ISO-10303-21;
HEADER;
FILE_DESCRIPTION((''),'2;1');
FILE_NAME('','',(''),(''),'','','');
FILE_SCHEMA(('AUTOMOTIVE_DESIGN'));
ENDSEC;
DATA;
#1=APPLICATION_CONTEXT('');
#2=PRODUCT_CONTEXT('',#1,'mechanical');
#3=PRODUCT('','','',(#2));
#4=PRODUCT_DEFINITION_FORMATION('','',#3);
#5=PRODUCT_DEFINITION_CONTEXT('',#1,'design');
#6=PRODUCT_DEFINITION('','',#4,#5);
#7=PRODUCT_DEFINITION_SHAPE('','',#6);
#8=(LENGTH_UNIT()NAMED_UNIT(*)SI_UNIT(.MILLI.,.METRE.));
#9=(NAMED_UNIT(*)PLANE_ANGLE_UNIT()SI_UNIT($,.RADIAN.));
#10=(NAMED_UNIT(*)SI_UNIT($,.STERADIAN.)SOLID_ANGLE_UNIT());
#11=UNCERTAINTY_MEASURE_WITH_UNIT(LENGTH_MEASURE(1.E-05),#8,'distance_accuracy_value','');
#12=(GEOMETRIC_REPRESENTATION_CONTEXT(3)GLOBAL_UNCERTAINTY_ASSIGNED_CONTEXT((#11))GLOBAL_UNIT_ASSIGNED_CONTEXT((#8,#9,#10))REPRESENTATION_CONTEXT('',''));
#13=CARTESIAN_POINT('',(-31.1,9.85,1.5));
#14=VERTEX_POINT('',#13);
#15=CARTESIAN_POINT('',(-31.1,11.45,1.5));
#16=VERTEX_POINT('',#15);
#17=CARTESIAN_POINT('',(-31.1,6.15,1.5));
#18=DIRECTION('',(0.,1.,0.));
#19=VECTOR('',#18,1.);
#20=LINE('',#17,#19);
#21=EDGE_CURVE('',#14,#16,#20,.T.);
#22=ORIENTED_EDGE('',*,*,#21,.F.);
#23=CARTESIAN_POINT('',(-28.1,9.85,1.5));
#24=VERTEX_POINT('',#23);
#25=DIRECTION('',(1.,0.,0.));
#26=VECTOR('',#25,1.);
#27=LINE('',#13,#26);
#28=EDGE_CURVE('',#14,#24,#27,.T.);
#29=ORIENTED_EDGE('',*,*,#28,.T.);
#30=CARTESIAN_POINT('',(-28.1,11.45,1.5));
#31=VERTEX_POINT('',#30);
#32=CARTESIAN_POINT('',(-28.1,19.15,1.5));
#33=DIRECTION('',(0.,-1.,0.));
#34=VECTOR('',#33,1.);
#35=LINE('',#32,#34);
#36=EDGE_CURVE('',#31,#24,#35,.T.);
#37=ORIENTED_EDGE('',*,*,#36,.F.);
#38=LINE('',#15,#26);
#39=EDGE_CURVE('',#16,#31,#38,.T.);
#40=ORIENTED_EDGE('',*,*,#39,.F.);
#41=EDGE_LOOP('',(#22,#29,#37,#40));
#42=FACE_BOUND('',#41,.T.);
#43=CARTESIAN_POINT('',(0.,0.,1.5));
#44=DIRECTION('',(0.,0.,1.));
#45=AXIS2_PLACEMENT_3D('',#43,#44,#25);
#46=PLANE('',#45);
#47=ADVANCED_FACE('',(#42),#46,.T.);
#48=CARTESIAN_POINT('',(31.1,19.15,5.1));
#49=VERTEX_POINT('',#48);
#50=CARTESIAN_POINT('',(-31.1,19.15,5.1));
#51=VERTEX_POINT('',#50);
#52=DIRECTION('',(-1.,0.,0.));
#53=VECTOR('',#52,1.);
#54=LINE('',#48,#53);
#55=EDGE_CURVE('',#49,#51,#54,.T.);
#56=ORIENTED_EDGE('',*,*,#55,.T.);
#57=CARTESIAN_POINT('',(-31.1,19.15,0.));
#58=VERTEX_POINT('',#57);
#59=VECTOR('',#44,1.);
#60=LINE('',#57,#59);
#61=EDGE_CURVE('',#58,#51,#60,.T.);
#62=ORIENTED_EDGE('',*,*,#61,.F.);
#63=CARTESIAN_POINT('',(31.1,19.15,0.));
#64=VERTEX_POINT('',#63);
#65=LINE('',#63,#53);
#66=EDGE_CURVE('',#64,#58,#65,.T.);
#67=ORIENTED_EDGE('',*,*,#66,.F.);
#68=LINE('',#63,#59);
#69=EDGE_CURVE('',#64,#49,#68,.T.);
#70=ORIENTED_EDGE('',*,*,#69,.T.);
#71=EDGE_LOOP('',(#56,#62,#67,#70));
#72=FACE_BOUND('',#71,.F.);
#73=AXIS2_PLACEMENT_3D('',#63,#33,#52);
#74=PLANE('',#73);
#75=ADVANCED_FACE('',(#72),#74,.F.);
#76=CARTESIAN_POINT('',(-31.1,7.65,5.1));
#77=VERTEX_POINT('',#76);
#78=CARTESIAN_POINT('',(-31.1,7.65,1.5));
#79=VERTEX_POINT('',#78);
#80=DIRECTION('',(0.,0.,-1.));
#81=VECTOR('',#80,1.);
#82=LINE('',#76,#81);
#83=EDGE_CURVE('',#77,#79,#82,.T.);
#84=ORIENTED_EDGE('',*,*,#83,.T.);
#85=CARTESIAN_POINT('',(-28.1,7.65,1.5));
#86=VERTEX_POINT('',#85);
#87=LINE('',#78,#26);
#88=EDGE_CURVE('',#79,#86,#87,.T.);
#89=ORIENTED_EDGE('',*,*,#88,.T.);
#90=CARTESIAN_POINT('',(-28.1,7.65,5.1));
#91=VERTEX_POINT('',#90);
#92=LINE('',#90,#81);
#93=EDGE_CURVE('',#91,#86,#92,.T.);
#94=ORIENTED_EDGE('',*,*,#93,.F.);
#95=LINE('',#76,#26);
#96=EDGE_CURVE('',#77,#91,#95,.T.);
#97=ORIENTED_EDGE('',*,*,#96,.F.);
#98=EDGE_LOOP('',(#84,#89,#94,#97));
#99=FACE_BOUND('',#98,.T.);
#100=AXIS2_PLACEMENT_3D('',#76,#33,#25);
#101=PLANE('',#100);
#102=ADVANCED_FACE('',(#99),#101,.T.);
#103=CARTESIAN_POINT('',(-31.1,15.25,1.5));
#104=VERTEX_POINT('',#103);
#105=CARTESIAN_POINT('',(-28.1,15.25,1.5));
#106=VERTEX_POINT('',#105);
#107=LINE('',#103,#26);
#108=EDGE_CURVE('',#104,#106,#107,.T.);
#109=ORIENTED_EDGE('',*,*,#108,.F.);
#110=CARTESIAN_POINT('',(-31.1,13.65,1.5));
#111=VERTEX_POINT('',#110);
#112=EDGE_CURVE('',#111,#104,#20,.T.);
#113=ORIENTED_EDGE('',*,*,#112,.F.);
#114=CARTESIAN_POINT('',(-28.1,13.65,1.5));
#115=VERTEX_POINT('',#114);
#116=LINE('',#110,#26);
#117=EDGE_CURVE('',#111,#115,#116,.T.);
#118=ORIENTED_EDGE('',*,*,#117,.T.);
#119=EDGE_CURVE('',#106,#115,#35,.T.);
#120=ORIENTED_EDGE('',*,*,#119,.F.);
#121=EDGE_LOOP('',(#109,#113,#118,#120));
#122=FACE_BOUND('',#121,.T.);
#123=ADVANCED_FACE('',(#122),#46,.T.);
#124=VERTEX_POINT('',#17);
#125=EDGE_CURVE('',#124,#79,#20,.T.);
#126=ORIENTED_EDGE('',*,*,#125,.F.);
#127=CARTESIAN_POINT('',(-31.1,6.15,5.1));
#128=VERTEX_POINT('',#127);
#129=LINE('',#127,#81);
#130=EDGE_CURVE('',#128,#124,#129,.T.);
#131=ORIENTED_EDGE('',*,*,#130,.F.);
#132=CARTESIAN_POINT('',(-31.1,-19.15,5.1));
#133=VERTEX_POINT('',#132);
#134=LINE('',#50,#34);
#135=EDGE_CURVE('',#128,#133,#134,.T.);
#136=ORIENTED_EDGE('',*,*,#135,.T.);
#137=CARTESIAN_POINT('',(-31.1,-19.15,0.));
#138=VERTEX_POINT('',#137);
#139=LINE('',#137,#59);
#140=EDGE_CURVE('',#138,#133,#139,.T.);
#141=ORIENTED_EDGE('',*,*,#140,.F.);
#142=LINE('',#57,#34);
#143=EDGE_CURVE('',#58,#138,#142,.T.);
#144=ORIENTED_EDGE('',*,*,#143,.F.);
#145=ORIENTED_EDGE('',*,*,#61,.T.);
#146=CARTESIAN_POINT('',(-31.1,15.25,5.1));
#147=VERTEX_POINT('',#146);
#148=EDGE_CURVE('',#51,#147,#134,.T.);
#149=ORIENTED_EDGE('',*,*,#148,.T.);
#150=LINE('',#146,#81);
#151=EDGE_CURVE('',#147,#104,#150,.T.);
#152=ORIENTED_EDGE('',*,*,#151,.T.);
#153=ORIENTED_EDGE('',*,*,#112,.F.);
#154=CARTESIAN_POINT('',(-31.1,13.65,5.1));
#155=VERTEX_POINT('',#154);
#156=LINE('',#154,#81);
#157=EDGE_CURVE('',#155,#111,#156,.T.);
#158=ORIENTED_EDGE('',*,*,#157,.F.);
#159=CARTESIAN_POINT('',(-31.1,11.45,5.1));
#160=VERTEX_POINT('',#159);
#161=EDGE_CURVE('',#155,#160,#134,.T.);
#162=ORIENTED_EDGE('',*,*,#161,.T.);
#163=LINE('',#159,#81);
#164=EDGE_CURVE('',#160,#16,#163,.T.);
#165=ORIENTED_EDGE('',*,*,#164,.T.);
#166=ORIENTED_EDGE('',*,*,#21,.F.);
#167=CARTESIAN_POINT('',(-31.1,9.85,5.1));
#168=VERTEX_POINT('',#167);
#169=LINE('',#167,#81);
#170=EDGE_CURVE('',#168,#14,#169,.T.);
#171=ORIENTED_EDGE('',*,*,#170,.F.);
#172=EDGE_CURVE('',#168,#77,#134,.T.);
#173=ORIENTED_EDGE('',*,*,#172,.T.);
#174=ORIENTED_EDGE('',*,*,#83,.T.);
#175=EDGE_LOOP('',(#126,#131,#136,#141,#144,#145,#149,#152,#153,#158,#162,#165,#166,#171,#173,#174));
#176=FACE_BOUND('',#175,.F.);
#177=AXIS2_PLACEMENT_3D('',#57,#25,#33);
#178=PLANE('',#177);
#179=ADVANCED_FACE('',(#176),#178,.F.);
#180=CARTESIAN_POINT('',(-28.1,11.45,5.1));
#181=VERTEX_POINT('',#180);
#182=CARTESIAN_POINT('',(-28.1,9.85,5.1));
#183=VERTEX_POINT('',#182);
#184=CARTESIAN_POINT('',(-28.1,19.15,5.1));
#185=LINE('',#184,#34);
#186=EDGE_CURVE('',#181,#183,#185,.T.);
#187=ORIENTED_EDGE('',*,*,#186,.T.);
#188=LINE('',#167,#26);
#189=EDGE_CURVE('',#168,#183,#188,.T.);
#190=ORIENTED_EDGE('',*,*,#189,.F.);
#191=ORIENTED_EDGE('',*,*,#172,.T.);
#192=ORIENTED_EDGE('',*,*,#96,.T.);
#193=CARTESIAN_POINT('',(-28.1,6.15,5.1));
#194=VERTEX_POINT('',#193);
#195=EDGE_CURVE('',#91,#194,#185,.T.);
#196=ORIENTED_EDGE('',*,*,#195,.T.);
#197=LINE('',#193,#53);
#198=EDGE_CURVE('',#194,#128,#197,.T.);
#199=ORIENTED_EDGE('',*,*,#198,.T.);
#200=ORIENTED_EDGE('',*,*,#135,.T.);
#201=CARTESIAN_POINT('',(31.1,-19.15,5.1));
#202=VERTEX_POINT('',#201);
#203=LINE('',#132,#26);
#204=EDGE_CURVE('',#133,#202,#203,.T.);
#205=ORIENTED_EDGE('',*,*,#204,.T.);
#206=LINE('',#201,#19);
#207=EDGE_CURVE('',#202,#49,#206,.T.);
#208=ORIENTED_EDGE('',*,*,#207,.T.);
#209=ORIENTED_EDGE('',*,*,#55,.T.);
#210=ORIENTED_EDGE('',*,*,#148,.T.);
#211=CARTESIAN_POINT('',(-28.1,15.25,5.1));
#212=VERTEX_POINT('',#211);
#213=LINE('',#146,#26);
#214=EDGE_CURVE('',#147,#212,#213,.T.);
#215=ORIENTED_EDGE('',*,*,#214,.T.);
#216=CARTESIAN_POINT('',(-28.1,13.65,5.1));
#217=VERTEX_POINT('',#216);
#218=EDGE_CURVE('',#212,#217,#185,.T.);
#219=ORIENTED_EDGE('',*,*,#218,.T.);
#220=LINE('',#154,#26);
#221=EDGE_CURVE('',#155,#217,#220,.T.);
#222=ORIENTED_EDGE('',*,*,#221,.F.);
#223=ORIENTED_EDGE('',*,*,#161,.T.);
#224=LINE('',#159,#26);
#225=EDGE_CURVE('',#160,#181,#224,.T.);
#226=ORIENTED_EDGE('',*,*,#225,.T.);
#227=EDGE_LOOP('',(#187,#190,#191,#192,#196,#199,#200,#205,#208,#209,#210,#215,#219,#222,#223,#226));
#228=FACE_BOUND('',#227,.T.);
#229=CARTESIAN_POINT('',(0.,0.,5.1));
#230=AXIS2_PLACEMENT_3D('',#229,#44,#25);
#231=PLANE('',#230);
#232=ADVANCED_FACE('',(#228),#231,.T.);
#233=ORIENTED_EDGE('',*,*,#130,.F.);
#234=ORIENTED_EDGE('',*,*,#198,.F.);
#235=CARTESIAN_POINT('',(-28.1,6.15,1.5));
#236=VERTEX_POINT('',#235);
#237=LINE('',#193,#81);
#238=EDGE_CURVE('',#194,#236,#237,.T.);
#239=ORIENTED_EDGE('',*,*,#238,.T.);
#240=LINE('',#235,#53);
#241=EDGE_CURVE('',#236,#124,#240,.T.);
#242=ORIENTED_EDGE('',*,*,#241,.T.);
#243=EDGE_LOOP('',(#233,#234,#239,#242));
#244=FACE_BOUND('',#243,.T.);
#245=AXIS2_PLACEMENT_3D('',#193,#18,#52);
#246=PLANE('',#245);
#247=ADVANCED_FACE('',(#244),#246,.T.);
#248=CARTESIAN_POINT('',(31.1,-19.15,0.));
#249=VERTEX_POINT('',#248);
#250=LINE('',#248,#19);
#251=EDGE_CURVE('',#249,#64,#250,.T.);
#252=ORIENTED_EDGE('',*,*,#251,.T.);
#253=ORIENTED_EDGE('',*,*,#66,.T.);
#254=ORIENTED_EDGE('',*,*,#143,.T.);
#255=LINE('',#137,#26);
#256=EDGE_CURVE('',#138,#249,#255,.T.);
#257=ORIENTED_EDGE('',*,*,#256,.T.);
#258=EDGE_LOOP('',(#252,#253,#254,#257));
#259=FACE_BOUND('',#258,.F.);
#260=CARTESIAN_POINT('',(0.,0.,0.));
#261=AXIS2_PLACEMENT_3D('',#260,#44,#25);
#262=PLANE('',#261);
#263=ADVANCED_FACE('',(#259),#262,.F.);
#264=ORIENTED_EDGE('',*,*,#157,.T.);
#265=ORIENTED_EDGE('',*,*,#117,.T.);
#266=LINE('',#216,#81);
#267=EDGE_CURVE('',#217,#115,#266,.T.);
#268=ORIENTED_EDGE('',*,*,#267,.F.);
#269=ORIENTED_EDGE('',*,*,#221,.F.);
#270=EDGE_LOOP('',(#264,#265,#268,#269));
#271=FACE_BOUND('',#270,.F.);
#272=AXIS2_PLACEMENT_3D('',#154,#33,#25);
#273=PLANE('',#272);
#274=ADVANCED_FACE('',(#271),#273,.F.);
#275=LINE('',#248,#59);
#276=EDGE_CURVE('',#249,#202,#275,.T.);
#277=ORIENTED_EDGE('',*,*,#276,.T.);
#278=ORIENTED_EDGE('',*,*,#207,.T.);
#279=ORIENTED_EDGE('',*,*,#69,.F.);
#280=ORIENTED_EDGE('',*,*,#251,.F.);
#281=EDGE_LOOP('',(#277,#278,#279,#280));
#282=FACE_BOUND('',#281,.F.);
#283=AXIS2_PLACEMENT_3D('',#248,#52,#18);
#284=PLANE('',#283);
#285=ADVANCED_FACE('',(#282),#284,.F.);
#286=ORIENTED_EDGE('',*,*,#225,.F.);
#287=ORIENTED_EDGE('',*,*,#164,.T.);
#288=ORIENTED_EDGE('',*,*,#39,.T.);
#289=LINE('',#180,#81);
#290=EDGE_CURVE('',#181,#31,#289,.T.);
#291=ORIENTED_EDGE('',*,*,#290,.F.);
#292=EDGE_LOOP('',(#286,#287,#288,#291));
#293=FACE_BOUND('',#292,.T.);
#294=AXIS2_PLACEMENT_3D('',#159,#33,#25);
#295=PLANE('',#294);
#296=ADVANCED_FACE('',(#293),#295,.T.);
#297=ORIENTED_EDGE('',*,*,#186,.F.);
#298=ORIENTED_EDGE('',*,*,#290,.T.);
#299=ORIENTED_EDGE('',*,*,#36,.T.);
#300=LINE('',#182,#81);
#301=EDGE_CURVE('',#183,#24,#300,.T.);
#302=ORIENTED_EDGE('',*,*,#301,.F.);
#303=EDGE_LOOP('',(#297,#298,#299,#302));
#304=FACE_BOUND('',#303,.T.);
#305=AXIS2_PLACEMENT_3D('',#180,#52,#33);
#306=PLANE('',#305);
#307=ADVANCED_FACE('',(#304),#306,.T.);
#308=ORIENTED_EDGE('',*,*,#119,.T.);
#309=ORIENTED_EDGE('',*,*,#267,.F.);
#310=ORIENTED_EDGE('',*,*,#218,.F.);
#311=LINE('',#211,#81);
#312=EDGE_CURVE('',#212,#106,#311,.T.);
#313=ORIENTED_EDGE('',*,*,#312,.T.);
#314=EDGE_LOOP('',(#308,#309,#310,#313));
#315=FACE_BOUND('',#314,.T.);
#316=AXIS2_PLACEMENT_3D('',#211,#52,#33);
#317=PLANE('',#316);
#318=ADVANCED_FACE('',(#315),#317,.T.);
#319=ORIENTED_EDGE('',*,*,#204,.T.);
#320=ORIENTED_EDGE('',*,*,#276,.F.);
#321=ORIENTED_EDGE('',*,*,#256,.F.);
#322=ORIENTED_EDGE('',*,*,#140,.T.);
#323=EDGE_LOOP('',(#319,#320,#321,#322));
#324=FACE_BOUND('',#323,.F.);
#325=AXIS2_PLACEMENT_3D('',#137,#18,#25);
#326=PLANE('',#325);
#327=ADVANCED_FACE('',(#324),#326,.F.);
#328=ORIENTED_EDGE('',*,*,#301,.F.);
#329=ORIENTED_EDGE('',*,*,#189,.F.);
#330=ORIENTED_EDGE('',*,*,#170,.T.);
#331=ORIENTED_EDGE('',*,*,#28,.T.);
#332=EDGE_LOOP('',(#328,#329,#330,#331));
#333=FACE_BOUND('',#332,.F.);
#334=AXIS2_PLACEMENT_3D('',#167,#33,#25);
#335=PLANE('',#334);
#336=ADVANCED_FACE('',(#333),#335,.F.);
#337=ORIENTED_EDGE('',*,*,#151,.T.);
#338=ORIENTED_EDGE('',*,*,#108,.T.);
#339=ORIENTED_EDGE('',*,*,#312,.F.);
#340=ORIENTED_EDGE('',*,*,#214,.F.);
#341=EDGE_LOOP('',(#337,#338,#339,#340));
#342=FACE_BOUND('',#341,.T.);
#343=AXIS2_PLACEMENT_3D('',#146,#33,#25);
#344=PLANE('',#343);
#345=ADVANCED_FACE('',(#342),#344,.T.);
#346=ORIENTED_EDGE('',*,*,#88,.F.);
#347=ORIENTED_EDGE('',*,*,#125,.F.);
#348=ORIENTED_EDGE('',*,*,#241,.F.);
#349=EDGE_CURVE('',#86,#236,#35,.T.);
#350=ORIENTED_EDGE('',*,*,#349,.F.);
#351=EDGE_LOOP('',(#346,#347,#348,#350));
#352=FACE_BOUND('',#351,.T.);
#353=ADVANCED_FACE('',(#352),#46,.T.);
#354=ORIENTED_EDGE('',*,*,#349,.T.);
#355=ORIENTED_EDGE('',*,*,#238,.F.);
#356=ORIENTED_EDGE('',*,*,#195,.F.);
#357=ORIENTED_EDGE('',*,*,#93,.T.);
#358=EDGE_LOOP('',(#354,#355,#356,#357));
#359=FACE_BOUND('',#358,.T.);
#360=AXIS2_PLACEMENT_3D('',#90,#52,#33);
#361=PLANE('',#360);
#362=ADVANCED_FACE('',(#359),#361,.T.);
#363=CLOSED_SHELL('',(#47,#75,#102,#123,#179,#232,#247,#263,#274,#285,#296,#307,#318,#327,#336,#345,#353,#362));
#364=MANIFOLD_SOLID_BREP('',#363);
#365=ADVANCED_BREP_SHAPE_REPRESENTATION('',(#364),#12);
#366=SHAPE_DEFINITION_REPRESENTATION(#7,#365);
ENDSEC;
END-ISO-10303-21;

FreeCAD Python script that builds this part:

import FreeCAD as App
import Part
import Sketcher


def add_polygon(sketch, points):
    """Adds a closed chain of lines whose ends are joined by coincident constraints."""
    first, n = sketch.GeometryCount, len(points)
    for a, b in zip(points, points[1:] + points[:1]):
        sketch.addGeometry(Part.LineSegment(App.Vector(*a, 0), App.Vector(*b, 0)), False)
    for i in range(n):
        sketch.addConstraint(Sketcher.Constraint("Coincident", first + i, 2, first + (i + 1) % n, 1))

doc = App.newDocument("Part")
body = doc.addObject("PartDesign::Body", "Body")

sketch1 = body.newObject("Sketcher::SketchObject", "Sketch")
sketch1.AttachmentSupport = (doc.getObject("XY_Plane"), [""])
sketch1.MapMode = "FlatFace"
add_polygon(sketch1, [(-31, 19), (-31, -19), (31, -19), (31, 19)])
sketch1.addConstraint(Sketcher.Constraint("Vertical", 0))
sketch1.addConstraint(Sketcher.Constraint("Horizontal", 1))
sketch1.addConstraint(Sketcher.Constraint("Vertical", 2))
sketch1.addConstraint(Sketcher.Constraint("Horizontal", 3))
sketch1.addConstraint(Sketcher.Constraint("Symmetric", 0, 2, 2, 2, -1, 1))
sketch1.addConstraint(Sketcher.Constraint("DistanceX", 1, 1, 1, 2, 62.2))
sketch1.addConstraint(Sketcher.Constraint("DistanceY", 0, 2, 0, 1, 38.3))
pad1 = body.newObject("PartDesign::Pad", "Pad")
pad1.Profile = sketch1
pad1.Length = 5.1

sketch2 = body.newObject("Sketcher::SketchObject", "Sketch001")
sketch2.AttachmentSupport = (doc.getObject("XY_Plane"), [""])
sketch2.MapMode = "FlatFace"
sketch2.AttachmentOffset = App.Placement(App.Vector(0, 0, 5.1), App.Rotation())
add_polygon(sketch2, [(-28.1, 15.2), (-31.1, 15.2), (-31.1, 13.7), (-28.1, 13.7)])
add_polygon(sketch2, [(-28.1, 11.4), (-31.1, 11.4), (-31.1, 9.8), (-28.1, 9.8)])
add_polygon(sketch2, [(-28.1, 7.7), (-31.1, 7.7), (-31.1, 6.2), (-28.1, 6.2)])
sketch2.addConstraint(Sketcher.Constraint("Horizontal", 0))
sketch2.addConstraint(Sketcher.Constraint("Vertical", 1))
sketch2.addConstraint(Sketcher.Constraint("Horizontal", 2))
sketch2.addConstraint(Sketcher.Constraint("Vertical", 3))
sketch2.addConstraint(Sketcher.Constraint("Horizontal", 4))
sketch2.addConstraint(Sketcher.Constraint("Vertical", 5))
sketch2.addConstraint(Sketcher.Constraint("Horizontal", 6))
sketch2.addConstraint(Sketcher.Constraint("Vertical", 7))
sketch2.addConstraint(Sketcher.Constraint("Horizontal", 8))
sketch2.addConstraint(Sketcher.Constraint("Vertical", 9))
sketch2.addConstraint(Sketcher.Constraint("Horizontal", 10))
sketch2.addConstraint(Sketcher.Constraint("Vertical", 11))
sketch2.addConstraint(Sketcher.Constraint("Vertical", 1, 2, 4, 2))
sketch2.addConstraint(Sketcher.Constraint("Vertical", 3, 2, 6, 2))
sketch2.addConstraint(Sketcher.Constraint("Vertical", 5, 2, 8, 2))
sketch2.addConstraint(Sketcher.Constraint("Vertical", 7, 2, 10, 2))
sketch2.addConstraint(Sketcher.Constraint("Equal", 3, 5))
sketch2.addConstraint(Sketcher.Constraint("DistanceX", 0, 2, 0, 1, 3.0))
sketch2.addConstraint(Sketcher.Constraint("DistanceY", 1, 2, 1, 1, 1.6))
sketch2.addConstraint(Sketcher.Constraint("DistanceY", 4, 2, 1, 2, 2.2))
sketch2.addConstraint(Sketcher.Constraint("DistanceY", 8, 2, 5, 2, 2.2))
sketch2.addConstraint(Sketcher.Constraint("DistanceY", 9, 2, 9, 1, 1.5))
sketch2.addConstraint(Sketcher.Constraint("DistanceX", 0, 2, -1, 1, 31.1))
sketch2.addConstraint(Sketcher.Constraint("DistanceY", -1, 1, 0, 2, 15.25))
pocket1 = body.newObject("PartDesign::Pocket", "Pocket")
pocket1.Profile = sketch2
pocket1.Length = 3.6

doc.recompute()
